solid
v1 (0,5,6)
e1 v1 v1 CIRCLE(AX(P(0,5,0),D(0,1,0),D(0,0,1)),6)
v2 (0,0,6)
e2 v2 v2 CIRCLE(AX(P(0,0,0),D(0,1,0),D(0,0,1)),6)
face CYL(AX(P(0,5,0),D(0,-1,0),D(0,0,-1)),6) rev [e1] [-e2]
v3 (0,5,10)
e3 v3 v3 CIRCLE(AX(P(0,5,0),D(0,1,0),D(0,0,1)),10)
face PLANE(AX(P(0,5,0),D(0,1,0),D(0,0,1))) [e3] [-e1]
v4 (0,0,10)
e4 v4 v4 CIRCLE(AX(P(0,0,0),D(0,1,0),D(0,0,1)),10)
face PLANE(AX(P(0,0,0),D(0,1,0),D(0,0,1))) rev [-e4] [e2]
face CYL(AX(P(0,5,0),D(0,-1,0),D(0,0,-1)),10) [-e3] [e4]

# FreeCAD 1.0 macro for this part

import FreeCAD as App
import Part
import Sketcher
from FreeCAD import Vector

doc = App.newDocument("Part")
body = doc.addObject("PartDesign::Body", "Body")

# Sketch on XZ plane
sketch1 = body.newObject("Sketcher::SketchObject", "Sketch")
sketch1.AttachmentSupport = (doc.getObject("XZ_Plane"), [""])
sketch1.MapMode = "FlatFace"
sketch1.addGeometry([
    Part.Circle(Vector(0, 0, 0), Vector(0, 0, 1), 10),
    Part.Circle(Vector(0, 0, 0), Vector(0, 0, 1), 6),
], False)
sketch1.addConstraint([
    Sketcher.Constraint("Coincident", 0, 3, -1, 1),
    Sketcher.Constraint("Coincident", 1, 3, -1, 1),
    Sketcher.Constraint("Diameter", 0, 20.0),
    Sketcher.Constraint("Diameter", 1, 12.0),
])
pad1 = body.newObject("PartDesign::Pad", "Pad")
pad1.Profile = sketch1
pad1.Length = 5
pad1.Reversed = True

doc.recompute()
